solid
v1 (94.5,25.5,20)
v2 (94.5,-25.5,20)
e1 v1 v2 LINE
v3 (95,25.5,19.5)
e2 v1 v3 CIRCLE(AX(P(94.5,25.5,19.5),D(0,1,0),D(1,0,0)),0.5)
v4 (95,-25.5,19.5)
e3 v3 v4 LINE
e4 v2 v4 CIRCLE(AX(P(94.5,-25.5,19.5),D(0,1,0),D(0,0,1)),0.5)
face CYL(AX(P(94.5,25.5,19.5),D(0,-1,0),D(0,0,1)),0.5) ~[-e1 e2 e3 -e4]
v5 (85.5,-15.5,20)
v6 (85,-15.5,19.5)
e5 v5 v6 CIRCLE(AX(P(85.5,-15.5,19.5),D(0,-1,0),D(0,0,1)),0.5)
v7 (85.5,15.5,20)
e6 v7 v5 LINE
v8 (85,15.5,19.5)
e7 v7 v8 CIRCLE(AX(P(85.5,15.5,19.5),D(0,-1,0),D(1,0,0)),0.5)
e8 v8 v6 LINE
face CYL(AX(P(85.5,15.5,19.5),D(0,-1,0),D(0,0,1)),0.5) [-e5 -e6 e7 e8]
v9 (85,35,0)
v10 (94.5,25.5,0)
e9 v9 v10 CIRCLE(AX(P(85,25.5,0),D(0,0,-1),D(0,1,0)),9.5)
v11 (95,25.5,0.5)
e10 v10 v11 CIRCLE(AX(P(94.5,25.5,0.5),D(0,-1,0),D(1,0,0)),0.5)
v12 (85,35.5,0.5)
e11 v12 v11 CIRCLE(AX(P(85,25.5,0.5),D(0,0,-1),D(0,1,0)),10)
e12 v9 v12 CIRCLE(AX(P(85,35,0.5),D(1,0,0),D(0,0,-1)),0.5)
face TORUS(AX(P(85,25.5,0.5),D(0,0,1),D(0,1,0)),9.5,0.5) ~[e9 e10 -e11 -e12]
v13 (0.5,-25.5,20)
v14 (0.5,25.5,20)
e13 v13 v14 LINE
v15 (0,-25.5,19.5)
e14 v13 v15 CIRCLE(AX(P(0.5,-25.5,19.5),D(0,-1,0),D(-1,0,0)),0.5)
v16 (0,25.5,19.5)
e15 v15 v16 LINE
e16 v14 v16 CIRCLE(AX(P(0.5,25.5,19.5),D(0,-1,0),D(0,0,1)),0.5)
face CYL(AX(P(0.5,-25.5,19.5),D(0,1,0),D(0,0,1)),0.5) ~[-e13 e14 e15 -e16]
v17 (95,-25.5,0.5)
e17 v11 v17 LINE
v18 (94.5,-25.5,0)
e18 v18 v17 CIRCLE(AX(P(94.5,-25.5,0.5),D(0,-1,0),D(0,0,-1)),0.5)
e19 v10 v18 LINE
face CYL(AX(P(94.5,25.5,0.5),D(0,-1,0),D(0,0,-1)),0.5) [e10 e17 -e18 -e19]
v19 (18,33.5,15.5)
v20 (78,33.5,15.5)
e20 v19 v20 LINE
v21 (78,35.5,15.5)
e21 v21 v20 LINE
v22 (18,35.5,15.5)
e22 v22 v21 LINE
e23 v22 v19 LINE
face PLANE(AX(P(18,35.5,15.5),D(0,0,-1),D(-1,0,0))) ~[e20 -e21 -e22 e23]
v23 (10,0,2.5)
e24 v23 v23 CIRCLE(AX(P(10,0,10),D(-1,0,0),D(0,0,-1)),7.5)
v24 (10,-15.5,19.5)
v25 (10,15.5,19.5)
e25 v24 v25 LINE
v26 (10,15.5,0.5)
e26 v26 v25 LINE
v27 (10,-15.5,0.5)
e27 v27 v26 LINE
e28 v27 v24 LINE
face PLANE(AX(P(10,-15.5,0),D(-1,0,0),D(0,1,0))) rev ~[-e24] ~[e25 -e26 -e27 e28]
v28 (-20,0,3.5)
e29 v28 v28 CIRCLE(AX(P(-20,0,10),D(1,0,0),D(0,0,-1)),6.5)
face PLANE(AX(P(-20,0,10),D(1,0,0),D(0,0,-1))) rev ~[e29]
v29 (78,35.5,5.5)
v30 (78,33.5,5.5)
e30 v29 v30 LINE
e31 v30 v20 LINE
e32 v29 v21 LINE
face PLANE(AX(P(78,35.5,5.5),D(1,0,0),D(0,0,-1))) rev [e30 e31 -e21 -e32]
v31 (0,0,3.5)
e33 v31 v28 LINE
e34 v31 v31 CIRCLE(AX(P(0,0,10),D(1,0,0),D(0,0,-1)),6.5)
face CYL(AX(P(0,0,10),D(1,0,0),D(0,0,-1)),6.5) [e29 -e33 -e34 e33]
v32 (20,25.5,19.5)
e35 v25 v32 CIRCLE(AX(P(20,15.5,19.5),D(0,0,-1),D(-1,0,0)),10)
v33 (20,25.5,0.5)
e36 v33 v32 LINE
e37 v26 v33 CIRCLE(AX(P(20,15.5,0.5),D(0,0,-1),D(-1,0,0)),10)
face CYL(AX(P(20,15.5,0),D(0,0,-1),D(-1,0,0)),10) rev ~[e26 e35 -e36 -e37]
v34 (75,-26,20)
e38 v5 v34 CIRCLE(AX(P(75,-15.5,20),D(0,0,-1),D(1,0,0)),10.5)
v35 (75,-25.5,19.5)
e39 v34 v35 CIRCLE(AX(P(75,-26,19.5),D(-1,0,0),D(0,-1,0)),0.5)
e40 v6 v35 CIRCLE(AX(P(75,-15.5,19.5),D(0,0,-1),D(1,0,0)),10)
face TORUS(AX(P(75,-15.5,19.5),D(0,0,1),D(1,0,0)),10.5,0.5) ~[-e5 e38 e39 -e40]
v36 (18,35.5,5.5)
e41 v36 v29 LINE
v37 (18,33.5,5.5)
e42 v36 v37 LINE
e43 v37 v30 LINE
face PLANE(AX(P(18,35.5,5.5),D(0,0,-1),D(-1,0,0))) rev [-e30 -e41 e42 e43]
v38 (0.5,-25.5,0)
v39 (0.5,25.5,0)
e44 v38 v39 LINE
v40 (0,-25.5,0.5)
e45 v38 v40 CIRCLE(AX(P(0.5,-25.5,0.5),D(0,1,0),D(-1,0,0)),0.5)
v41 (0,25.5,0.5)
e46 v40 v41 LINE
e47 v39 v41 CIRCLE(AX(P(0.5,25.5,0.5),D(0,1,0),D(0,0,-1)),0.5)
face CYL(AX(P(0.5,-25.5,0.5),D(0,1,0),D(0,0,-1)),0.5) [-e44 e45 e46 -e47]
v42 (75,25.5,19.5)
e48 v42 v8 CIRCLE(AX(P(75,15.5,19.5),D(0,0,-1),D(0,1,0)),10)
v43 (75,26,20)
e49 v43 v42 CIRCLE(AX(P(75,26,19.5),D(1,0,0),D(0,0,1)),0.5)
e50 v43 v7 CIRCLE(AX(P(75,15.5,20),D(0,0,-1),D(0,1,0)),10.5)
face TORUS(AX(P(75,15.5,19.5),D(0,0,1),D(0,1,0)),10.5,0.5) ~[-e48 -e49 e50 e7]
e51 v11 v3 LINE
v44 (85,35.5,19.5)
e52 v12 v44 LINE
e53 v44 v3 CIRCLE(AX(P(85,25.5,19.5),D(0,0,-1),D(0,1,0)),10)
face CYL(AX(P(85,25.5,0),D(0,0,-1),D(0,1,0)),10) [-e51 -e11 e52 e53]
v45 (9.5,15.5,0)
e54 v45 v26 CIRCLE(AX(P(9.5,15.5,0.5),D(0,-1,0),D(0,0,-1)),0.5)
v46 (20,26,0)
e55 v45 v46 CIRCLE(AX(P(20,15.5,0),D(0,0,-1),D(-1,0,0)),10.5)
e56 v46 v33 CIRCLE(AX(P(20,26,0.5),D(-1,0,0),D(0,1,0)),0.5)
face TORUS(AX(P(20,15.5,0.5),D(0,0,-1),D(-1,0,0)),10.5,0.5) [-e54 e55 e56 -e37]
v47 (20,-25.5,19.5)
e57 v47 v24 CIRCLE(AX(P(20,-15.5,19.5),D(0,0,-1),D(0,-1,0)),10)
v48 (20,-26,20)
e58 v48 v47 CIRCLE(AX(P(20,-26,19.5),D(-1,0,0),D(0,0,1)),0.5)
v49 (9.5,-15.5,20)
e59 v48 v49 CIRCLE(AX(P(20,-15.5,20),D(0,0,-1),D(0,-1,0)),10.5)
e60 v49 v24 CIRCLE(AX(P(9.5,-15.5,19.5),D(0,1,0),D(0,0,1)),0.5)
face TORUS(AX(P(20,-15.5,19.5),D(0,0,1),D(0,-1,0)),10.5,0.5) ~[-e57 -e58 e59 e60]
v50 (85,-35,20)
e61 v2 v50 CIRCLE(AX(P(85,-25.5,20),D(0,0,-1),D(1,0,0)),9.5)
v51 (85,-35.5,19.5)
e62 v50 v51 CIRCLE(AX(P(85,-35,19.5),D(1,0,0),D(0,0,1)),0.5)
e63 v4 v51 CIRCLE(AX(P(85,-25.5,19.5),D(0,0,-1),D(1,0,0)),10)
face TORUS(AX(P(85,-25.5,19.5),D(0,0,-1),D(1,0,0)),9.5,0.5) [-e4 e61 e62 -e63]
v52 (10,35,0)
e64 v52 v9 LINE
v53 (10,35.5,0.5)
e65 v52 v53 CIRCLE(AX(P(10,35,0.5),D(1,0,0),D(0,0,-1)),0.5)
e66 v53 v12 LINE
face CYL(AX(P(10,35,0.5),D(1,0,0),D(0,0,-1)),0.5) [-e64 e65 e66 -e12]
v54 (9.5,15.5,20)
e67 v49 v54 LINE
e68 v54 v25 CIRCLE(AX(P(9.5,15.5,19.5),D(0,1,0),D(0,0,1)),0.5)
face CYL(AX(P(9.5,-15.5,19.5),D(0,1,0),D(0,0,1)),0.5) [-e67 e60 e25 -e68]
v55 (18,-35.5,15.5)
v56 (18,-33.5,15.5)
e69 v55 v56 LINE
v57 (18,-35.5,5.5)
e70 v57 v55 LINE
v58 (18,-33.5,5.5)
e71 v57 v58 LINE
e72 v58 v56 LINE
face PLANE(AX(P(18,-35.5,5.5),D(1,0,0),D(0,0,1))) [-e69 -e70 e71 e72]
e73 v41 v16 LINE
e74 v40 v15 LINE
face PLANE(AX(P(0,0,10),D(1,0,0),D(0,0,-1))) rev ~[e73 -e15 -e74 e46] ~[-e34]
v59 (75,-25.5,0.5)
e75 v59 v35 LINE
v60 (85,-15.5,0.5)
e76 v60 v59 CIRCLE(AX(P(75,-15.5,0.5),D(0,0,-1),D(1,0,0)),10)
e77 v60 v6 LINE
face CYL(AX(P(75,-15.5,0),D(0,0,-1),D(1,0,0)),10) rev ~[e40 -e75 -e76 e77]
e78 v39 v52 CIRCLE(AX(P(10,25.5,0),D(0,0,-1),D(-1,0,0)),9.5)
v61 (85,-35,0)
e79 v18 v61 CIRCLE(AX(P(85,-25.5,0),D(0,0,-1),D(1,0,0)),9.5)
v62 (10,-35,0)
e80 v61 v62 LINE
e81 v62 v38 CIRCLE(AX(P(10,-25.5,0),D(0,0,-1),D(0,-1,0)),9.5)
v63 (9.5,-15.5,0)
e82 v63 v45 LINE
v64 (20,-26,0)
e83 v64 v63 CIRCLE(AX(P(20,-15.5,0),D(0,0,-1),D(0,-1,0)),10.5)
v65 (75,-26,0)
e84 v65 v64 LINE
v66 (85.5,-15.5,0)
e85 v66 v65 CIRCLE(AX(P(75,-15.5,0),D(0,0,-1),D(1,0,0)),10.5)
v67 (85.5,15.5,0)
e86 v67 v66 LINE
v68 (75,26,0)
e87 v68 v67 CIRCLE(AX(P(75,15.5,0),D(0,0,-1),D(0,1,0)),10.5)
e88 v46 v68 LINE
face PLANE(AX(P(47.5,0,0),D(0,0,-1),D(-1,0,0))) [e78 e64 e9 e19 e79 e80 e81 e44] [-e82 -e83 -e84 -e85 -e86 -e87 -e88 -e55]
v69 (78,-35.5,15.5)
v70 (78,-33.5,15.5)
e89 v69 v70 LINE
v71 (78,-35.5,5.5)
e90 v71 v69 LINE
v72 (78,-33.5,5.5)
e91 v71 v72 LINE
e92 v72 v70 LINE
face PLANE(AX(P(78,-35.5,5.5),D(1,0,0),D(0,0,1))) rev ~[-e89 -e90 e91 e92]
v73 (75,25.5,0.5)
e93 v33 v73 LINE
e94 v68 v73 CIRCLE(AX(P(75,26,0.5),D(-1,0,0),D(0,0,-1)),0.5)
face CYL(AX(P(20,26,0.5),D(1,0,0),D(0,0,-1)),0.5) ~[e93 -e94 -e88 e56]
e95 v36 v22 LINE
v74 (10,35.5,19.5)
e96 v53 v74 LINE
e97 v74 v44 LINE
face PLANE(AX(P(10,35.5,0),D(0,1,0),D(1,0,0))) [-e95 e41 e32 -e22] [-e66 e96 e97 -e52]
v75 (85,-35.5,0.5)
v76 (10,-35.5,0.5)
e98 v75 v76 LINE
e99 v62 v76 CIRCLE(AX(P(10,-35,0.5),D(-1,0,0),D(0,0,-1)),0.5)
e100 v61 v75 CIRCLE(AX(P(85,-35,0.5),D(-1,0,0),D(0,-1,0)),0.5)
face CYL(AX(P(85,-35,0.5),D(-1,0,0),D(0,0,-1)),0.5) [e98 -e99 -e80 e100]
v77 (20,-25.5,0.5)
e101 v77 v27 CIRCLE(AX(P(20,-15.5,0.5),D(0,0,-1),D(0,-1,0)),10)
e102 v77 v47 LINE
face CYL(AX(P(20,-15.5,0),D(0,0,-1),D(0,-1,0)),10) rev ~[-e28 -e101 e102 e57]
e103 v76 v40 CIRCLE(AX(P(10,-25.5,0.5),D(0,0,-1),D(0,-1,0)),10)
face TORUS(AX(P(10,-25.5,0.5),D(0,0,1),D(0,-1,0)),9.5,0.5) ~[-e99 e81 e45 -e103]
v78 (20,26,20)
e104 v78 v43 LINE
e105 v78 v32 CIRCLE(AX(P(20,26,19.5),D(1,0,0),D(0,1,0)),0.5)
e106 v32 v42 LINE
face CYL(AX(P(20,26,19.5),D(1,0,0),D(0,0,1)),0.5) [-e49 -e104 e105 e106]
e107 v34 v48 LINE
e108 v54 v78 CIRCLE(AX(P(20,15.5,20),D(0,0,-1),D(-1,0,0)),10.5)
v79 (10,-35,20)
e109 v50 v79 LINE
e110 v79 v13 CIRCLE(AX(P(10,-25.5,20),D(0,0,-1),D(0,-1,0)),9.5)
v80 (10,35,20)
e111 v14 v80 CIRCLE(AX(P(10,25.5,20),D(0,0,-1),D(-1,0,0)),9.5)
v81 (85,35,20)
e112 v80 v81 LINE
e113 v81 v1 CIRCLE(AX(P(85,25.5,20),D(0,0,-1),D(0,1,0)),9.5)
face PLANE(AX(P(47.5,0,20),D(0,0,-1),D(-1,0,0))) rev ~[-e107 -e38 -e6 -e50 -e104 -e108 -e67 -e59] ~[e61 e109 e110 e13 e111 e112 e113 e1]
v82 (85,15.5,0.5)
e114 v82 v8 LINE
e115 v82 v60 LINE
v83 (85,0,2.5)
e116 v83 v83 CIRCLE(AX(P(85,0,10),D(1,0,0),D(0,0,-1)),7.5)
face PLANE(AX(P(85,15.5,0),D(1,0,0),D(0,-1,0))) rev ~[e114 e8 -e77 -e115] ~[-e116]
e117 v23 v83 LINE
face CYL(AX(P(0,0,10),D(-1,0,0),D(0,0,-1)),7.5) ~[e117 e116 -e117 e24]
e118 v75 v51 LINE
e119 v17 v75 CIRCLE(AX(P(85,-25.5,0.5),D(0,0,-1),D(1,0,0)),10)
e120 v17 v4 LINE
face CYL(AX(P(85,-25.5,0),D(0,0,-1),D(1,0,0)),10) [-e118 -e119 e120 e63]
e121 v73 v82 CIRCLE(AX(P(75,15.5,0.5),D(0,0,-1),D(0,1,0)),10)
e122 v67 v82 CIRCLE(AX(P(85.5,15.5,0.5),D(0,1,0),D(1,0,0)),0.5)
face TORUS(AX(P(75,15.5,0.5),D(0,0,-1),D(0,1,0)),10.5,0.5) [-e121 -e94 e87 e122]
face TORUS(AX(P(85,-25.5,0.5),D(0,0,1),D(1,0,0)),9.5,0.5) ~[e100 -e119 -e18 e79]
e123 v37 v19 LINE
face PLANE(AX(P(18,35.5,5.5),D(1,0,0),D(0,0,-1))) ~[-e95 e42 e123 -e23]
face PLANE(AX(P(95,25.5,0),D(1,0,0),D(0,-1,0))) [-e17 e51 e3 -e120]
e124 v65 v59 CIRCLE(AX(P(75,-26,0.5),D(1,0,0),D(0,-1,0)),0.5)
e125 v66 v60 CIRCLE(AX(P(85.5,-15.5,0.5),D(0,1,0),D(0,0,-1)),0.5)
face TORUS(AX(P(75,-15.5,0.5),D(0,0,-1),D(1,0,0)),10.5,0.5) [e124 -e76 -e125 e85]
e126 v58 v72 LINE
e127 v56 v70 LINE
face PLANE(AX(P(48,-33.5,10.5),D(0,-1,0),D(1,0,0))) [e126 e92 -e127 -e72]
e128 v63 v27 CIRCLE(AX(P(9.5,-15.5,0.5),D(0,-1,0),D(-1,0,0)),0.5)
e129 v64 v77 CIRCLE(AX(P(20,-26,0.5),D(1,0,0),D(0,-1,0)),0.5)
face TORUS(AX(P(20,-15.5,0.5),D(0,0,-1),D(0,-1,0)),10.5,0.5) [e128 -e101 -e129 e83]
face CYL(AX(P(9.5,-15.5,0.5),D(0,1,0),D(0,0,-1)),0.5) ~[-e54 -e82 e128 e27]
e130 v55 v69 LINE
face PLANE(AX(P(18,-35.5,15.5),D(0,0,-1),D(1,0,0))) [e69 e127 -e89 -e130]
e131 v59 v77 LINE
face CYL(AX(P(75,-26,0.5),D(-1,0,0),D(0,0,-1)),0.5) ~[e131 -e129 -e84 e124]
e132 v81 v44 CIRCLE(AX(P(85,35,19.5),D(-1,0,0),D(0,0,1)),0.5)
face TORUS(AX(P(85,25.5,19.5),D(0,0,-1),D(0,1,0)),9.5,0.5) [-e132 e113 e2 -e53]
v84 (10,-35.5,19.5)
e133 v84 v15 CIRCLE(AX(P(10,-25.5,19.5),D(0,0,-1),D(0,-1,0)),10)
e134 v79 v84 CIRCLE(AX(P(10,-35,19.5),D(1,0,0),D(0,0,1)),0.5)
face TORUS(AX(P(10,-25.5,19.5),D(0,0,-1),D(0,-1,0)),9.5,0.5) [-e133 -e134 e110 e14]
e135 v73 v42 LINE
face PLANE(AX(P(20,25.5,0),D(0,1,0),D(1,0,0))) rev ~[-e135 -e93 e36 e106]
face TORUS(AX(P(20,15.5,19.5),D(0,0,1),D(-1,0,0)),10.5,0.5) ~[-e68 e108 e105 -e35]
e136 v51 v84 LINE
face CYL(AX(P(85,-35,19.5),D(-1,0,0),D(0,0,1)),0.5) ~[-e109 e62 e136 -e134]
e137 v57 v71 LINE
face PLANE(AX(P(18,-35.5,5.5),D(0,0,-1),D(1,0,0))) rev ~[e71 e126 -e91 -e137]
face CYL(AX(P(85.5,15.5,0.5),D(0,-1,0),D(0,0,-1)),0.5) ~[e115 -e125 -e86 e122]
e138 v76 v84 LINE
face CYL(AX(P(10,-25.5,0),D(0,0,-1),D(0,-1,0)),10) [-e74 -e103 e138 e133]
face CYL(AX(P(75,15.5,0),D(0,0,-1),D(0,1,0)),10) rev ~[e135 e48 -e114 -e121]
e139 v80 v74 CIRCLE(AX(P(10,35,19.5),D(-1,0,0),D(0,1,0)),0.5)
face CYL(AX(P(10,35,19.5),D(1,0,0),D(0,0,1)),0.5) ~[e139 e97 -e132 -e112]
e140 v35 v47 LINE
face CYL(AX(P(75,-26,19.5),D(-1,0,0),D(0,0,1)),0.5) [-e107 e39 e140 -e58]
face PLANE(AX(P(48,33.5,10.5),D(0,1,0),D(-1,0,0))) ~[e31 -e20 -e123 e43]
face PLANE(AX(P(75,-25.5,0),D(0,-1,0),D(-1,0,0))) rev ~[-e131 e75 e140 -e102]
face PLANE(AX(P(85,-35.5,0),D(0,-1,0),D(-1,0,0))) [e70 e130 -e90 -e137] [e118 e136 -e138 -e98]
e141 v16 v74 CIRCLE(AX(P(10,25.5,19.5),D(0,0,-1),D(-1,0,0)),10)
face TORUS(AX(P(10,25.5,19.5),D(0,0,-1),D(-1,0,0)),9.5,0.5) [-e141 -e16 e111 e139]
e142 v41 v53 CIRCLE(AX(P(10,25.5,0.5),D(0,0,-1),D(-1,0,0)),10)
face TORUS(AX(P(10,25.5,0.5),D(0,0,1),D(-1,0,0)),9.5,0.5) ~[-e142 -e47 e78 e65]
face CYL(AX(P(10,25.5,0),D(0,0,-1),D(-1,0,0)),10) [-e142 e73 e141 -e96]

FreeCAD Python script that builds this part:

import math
import FreeCAD as App
import Part
import Sketcher

V = App.Vector
Q = App.Units.Quantity


def edges_at(feature, points):
    """Names of the edges that pass closest to the given points."""
    edges = feature.Shape.Edges
    near = lambda p: min(range(len(edges)), key=lambda i: edges[i].distToShape(Part.Vertex(*p))[0])
    return sorted({f"Edge{near(p) + 1}" for p in points})


def add_polygon(sketch, points):
    """Adds a closed chain of lines whose ends are joined by coincident constraints."""
    first, n = sketch.GeometryCount, len(points)
    for a, b in zip(points, points[1:] + points[:1]):
        sketch.addGeometry(Part.LineSegment(App.Vector(*a, 0), App.Vector(*b, 0)), False)
    for i in range(n):
        sketch.addConstraint(Sketcher.Constraint("Coincident", first + i, 2, first + (i + 1) % n, 1))

doc = App.newDocument("Part")
body = doc.addObject("PartDesign::Body", "Body")

# Sketch on XY plane
sketch1 = body.newObject("Sketcher::SketchObject", "Sketch")
sketch1.AttachmentSupport = (doc.getObject("XY_Plane"), [""])
sketch1.MapMode = "FlatFace"
sketch1.addGeometry(Part.ArcOfCircle(Part.Circle(V(10, 26, 0), V(0, 0, 1), 10), math.radians(90), math.radians(180)), False)
sketch1.addGeometry(Part.LineSegment(V(0, 26, 0), V(0, -26, 0)), False)
sketch1.addGeometry(Part.ArcOfCircle(Part.Circle(V(10, -26, 0), V(0, 0, 1), 10), math.radians(180), math.radians(270)), False)
sketch1.addGeometry(Part.LineSegment(V(10, -36, 0), V(85, -36, 0)), False)
sketch1.addGeometry(Part.ArcOfCircle(Part.Circle(V(85, -26, 0), V(0, 0, 1), 10), math.radians(-90), math.radians(0)), False)
sketch1.addGeometry(Part.LineSegment(V(95, -26, 0), V(95, 26, 0)), False)
sketch1.addGeometry(Part.ArcOfCircle(Part.Circle(V(85, 26, 0), V(0, 0, 1), 10), math.radians(0), math.radians(90)), False)
sketch1.addGeometry(Part.LineSegment(V(85, 36, 0), V(10, 36, 0)), False)
sketch1.addGeometry(Part.ArcOfCircle(Part.Circle(V(20, 16, 0), V(0, 0, 1), 10), math.radians(90), math.radians(180)), False)
sketch1.addGeometry(Part.LineSegment(V(20, 26, 0), V(75, 26, 0)), False)
sketch1.addGeometry(Part.ArcOfCircle(Part.Circle(V(75, 16, 0), V(0, 0, 1), 10), math.radians(0), math.radians(90)), False)
sketch1.addGeometry(Part.LineSegment(V(85, 16, 0), V(85, -16, 0)), False)
sketch1.addGeometry(Part.ArcOfCircle(Part.Circle(V(75, -16, 0), V(0, 0, 1), 10), math.radians(-90), math.radians(0)), False)
sketch1.addGeometry(Part.LineSegment(V(75, -26, 0), V(20, -26, 0)), False)
sketch1.addGeometry(Part.ArcOfCircle(Part.Circle(V(20, -16, 0), V(0, 0, 1), 10), math.radians(180), math.radians(270)), False)
sketch1.addGeometry(Part.LineSegment(V(10, -16, 0), V(10, 16, 0)), False)
sketch1.addConstraint(Sketcher.Constraint("Tangent", 0, 2, 1, 1))
sketch1.addConstraint(Sketcher.Constraint("Tangent", 1, 2, 2, 1))
sketch1.addConstraint(Sketcher.Constraint("Tangent", 2, 2, 3, 1))
sketch1.addConstraint(Sketcher.Constraint("Tangent", 3, 2, 4, 1))
sketch1.addConstraint(Sketcher.Constraint("Tangent", 4, 2, 5, 1))
sketch1.addConstraint(Sketcher.Constraint("Tangent", 5, 2, 6, 1))
sketch1.addConstraint(Sketcher.Constraint("Tangent", 6, 2, 7, 1))
sketch1.addConstraint(Sketcher.Constraint("Tangent", 7, 2, 0, 1))
sketch1.addConstraint(Sketcher.Constraint("Tangent", 8, 1, 9, 1))
sketch1.addConstraint(Sketcher.Constraint("Tangent", 9, 2, 10, 2))
sketch1.addConstraint(Sketcher.Constraint("Tangent", 10, 1, 11, 1))
sketch1.addConstraint(Sketcher.Constraint("Tangent", 11, 2, 12, 2))
sketch1.addConstraint(Sketcher.Constraint("Tangent", 12, 1, 13, 1))
sketch1.addConstraint(Sketcher.Constraint("Tangent", 13, 2, 14, 2))
sketch1.addConstraint(Sketcher.Constraint("Tangent", 14, 1, 15, 1))
sketch1.addConstraint(Sketcher.Constraint("Tangent", 15, 2, 8, 2))
sketch1.addConstraint(Sketcher.Constraint("Vertical", 1))
sketch1.addConstraint(Sketcher.Constraint("Horizontal", 3))
sketch1.addConstraint(Sketcher.Constraint("Vertical", 5))
sketch1.addConstraint(Sketcher.Constraint("Horizontal", 7))
sketch1.addConstraint(Sketcher.Constraint("Horizontal", 9))
sketch1.addConstraint(Sketcher.Constraint("Vertical", 11))
sketch1.addConstraint(Sketcher.Constraint("Horizontal", 13))
sketch1.addConstraint(Sketcher.Constraint("Vertical", 15))
sketch1.addConstraint(Sketcher.Constraint("Equal", 0, 2))
sketch1.addConstraint(Sketcher.Constraint("Equal", 2, 4))
sketch1.addConstraint(Sketcher.Constraint("Equal", 4, 6))
sketch1.addConstraint(Sketcher.Constraint("Equal", 6, 8))
sketch1.addConstraint(Sketcher.Constraint("Equal", 8, 10))
sketch1.addConstraint(Sketcher.Constraint("Equal", 10, 12))
sketch1.addConstraint(Sketcher.Constraint("Equal", 12, 14))
sketch1.addConstraint(Sketcher.Constraint("Symmetric", 0, 2, 1, 2, -1, 1))
sketch1.addConstraint(Sketcher.Constraint("Horizontal", 5, 2, 8, 1))
sketch1.addConstraint(Sketcher.Constraint("Horizontal", 4, 2, 12, 1))
sketch1.addConstraint(Sketcher.Constraint("Vertical", 6, 2, 10, 1))
sketch1.addConstraint(Sketcher.Constraint("Vertical", 7, 2, 14, 1))
sketch1.addConstraint(Sketcher.Constraint("Radius", 0, Q("10 mm")))
sketch1.addConstraint(Sketcher.Constraint("DistanceX", 3, 1, 3, 2, Q("75 mm")))
sketch1.addConstraint(Sketcher.Constraint("DistanceY", 1, 2, 1, 1, Q("51 mm")))
pad1 = body.newObject("PartDesign::Pad", "Pad")
pad1.Profile = sketch1
pad1.Length = 20

# Sketch on YZ plane
sketch2 = body.newObject("Sketcher::SketchObject", "Sketch001")
sketch2.AttachmentSupport = (doc.getObject("YZ_Plane"), [""])
sketch2.MapMode = "FlatFace"
sketch2.addGeometry(Part.Circle(V(0, 10, 0), V(0, 0, 1), 8), False)
sketch2.addConstraint(Sketcher.Constraint("PointOnObject", 0, 3, -2))
sketch2.addConstraint(Sketcher.Constraint("Diameter", 0, Q("15 mm")))
sketch2.addConstraint(Sketcher.Constraint("DistanceY", -1, 1, 0, 3, Q("10 mm")))
pad2 = body.newObject("PartDesign::Pad", "Pad001")
pad2.Profile = sketch2
pad2.Length = 85

# Sketch on YZ plane
sketch3 = body.newObject("Sketcher::SketchObject", "Sketch002")
sketch3.AttachmentSupport = (doc.getObject("YZ_Plane"), [""])
sketch3.MapMode = "FlatFace"
sketch3.addGeometry(Part.Circle(V(0, 10, 0), V(0, 0, 1), 6), False)
sketch3.addConstraint(Sketcher.Constraint("PointOnObject", 0, 3, -2))
sketch3.addConstraint(Sketcher.Constraint("Diameter", 0, Q("13 mm")))
sketch3.addConstraint(Sketcher.Constraint("DistanceY", -1, 1, 0, 3, Q("10 mm")))
pad3 = body.newObject("PartDesign::Pad", "Pad002")
pad3.Profile = sketch3
pad3.Length = 20
pad3.Reversed = True

# Sketch on XZ plane
sketch4 = body.newObject("Sketcher::SketchObject", "Sketch003")
sketch4.AttachmentSupport = (doc.getObject("XZ_Plane"), [""])
sketch4.MapMode = "FlatFace"
sketch4.AttachmentOffset = App.Placement(V(0, 0, 35.5), App.Rotation())
add_polygon(sketch4, [(18, 16), (18, 6), (78, 6), (78, 16)])  # lines 0-3
sketch4.addConstraint(Sketcher.Constraint("Vertical", 0))
sketch4.addConstraint(Sketcher.Constraint("Horizontal", 1))
sketch4.addConstraint(Sketcher.Constraint("Vertical", 2))
sketch4.addConstraint(Sketcher.Constraint("Horizontal", 3))
sketch4.addConstraint(Sketcher.Constraint("DistanceX", 1, 1, 1, 2, Q("60 mm")))
sketch4.addConstraint(Sketcher.Constraint("DistanceY", 0, 2, 0, 1, Q("10 mm")))
sketch4.addConstraint(Sketcher.Constraint("DistanceX", -1, 1, 0, 2, Q("18 mm")))
sketch4.addConstraint(Sketcher.Constraint("DistanceY", -1, 1, 0, 2, Q("5.5 mm")))
pocket1 = body.newObject("PartDesign::Pocket", "Pocket")
pocket1.Profile = sketch4
pocket1.Length = 2
doc.recompute()

mirrored = body.newObject("PartDesign::Mirrored", "Mirrored")
mirrored.Originals = [pocket1]
mirrored.MirrorPlane = (doc.getObject("XZ_Plane"), [""])
body.Tip = mirrored
doc.recompute()

fillet = body.newObject("PartDesign::Fillet", "Fillet")
fillet.Base = (mirrored, edges_at(mirrored, [
    (47.5, 35.5, 0),
    (92.071, 32.571, 0),
    (95, 0, 0),
    (92.071, -32.571, 0),
    (47.5, -35.5, 0),
    (2.929, -32.571, 0),
    (47.5, -35.5, 20),
    (92.071, -32.571, 20),
    (95, 0, 20),
    (92.071, 32.571, 20),
    (47.5, 35.5, 20),
    (2.929, 32.571, 20),
    (0, 0, 20),
    (2.929, -32.571, 20),
    (0, 0, 0),
    (2.929, 32.571, 0),
]))
fillet.Radius = 0.5
doc.recompute()

fillet2 = body.newObject("PartDesign::Fillet", "Fillet001")
fillet2.Base = (fillet, edges_at(fillet, [
    (12.929, -22.571, 0),
    (47.5, -25.5, 0),
    (82.071, -22.571, 0),
    (85, 0, 0),
    (82.071, 22.571, 0),
    (47.5, 25.5, 0),
    (12.929, 22.571, 0),
    (10, 0, 0),
    (10, 0, 20),
    (12.929, -22.571, 20),
    (47.5, -25.5, 20),
    (82.071, -22.571, 20),
    (85, 0, 20),
    (82.071, 22.571, 20),
    (47.5, 25.5, 20),
    (12.929, 22.571, 20),
]))
fillet2.Radius = 0.5

doc.recompute()
